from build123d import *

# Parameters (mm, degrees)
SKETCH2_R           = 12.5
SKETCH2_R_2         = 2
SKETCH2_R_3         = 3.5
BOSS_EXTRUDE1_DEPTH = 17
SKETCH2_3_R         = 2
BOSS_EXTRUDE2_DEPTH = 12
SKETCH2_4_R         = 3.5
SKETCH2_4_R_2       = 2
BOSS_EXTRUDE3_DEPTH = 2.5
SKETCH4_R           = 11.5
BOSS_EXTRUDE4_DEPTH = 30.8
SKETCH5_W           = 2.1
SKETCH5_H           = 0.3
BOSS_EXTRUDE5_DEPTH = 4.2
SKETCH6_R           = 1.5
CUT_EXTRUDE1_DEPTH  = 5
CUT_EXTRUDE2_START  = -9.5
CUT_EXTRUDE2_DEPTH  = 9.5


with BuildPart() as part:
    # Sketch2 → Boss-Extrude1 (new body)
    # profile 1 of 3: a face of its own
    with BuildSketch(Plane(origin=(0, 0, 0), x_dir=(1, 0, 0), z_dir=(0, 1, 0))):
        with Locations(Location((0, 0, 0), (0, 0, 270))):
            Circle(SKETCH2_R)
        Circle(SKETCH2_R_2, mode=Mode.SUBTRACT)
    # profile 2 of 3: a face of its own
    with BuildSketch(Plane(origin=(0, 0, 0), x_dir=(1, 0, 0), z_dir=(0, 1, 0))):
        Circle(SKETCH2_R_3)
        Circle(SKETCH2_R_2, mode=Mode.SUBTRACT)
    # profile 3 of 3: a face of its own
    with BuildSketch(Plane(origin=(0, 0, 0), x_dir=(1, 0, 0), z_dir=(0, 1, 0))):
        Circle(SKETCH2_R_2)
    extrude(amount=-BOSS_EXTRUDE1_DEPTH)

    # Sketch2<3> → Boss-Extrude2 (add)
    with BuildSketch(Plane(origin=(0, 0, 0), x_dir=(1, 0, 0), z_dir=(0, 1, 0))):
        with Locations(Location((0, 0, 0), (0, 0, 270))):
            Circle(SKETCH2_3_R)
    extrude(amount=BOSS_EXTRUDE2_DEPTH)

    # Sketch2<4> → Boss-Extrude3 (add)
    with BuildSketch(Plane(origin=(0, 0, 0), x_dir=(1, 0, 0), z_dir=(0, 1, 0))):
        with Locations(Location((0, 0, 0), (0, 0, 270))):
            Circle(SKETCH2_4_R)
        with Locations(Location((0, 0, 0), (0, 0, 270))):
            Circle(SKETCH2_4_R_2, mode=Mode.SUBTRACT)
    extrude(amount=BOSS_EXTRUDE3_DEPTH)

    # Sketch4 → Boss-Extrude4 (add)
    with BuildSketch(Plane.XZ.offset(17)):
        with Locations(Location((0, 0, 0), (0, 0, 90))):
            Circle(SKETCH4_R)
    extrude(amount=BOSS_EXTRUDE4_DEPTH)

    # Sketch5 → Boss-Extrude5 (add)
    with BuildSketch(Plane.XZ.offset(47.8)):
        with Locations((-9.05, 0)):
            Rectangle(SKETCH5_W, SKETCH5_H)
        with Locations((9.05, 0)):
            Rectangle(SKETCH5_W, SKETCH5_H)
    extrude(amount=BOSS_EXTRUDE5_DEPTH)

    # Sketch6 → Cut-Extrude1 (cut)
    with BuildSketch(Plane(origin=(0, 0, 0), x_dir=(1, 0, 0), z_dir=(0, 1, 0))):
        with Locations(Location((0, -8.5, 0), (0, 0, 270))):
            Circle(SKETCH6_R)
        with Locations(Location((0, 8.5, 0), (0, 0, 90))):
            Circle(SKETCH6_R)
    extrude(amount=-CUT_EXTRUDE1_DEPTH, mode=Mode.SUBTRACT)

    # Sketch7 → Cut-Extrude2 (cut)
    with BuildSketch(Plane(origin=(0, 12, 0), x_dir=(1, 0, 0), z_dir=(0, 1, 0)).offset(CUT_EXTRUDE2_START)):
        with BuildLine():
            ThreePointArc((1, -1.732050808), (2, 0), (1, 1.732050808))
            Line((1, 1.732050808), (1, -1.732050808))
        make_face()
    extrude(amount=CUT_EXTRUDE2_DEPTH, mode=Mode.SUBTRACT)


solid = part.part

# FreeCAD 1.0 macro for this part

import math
import FreeCAD as App
import Part
import Sketcher
from FreeCAD import Vector
Q = App.Units.Quantity

doc = App.newDocument("Part")
body = doc.addObject("PartDesign::Body", "Body")

sketch1 = body.newObject("Sketcher::SketchObject", "Sketch")
sketch1.AttachmentSupport = (doc.getObject("XZ_Plane"), [""])
sketch1.MapMode = "FlatFace"
sketch1.addGeometry(Part.Circle(Vector(0, 0, 0), Vector(0, 0, 1), 12), False)
sketch1.addConstraint([
    Sketcher.Constraint("Coincident", 0, 3, -1, 1),
    Sketcher.Constraint("Diameter", 0, Q("25 mm")),
])
pad1 = body.newObject("PartDesign::Pad", "Pad")
pad1.Profile = sketch1
pad1.Length = 17

sketch2 = body.newObject("Sketcher::SketchObject", "Sketch001")
sketch2.AttachmentSupport = (doc.getObject("XZ_Plane"), [""])
sketch2.MapMode = "FlatFace"
sketch2.addGeometry(Part.Circle(Vector(0, 0, 0), Vector(0, 0, 1), 2), False)
sketch2.addConstraint([
    Sketcher.Constraint("Coincident", 0, 3, -1, 1),
    Sketcher.Constraint("Diameter", 0, Q("4 mm")),
])
pad2 = body.newObject("PartDesign::Pad", "Pad001")
pad2.Profile = sketch2
pad2.Length = 12
pad2.Reversed = True

sketch3 = body.newObject("Sketcher::SketchObject", "Sketch002")
sketch3.AttachmentSupport = (doc.getObject("XZ_Plane"), [""])
sketch3.MapMode = "FlatFace"
sketch3.addGeometry([
    Part.Circle(Vector(0, 0, 0), Vector(0, 0, 1), 3.5),
    Part.Circle(Vector(0, 0, 0), Vector(0, 0, 1), 2),
], False)
sketch3.addConstraint([
    Sketcher.Constraint("Coincident", 0, 3, -1, 1),
    Sketcher.Constraint("Coincident", 1, 3, -1, 1),
    Sketcher.Constraint("Diameter", 0, Q("7 mm")),
    Sketcher.Constraint("Diameter", 1, Q("4 mm")),
])
pad3 = body.newObject("PartDesign::Pad", "Pad002")
pad3.Profile = sketch3
pad3.Length = 2.5
pad3.Reversed = True

sketch4 = body.newObject("Sketcher::SketchObject", "Sketch003")
sketch4.AttachmentSupport = (doc.getObject("XZ_Plane"), [""])
sketch4.MapMode = "FlatFace"
sketch4.AttachmentOffset = App.Placement(Vector(0, 0, 17), App.Rotation())
sketch4.addGeometry(Part.Circle(Vector(0, 0, 0), Vector(0, 0, 1), 12), False)
sketch4.addConstraint([
    Sketcher.Constraint("Coincident", 0, 3, -1, 1),
    Sketcher.Constraint("Diameter", 0, Q("23 mm")),
])
pad4 = body.newObject("PartDesign::Pad", "Pad003")
pad4.Profile = sketch4
pad4.Length = 30.8

sketch5 = body.newObject("Sketcher::SketchObject", "Sketch004")
sketch5.AttachmentSupport = (doc.getObject("XZ_Plane"), [""])
sketch5.MapMode = "FlatFace"
sketch5.AttachmentOffset = App.Placement(Vector(0, 0, 47.8), App.Rotation())
sketch5.addGeometry([
    Part.LineSegment(Vector(-10.1, 0.15, 0), Vector(-10.1, -0.15, 0)),
    Part.LineSegment(Vector(-10.1, -0.15, 0), Vector(-8, -0.15, 0)),
    Part.LineSegment(Vector(-8, -0.15, 0), Vector(-8, 0.15, 0)),
    Part.LineSegment(Vector(-8, 0.15, 0), Vector(-10.1, 0.15, 0)),
    Part.LineSegment(Vector(8, 0.15, 0), Vector(8, -0.15, 0)),
    Part.LineSegment(Vector(8, -0.15, 0), Vector(10.1, -0.15, 0)),
    Part.LineSegment(Vector(10.1, -0.15, 0), Vector(10.1, 0.15, 0)),
    Part.LineSegment(Vector(10.1, 0.15, 0), Vector(8, 0.15, 0)),
], False)
sketch5.addConstraint([
    Sketcher.Constraint("Coincident", 0, 2, 1, 1),
    Sketcher.Constraint("Coincident", 1, 2, 2, 1),
    Sketcher.Constraint("Coincident", 2, 2, 3, 1),
    Sketcher.Constraint("Coincident", 3, 2, 0, 1),
    Sketcher.Constraint("Coincident", 4, 2, 5, 1),
    Sketcher.Constraint("Coincident", 5, 2, 6, 1),
    Sketcher.Constraint("Coincident", 6, 2, 7, 1),
    Sketcher.Constraint("Coincident", 7, 2, 4, 1),
    Sketcher.Constraint("Vertical", 0),
    Sketcher.Constraint("Horizontal", 1),
    Sketcher.Constraint("Vertical", 2),
    Sketcher.Constraint("Horizontal", 3),
    Sketcher.Constraint("Vertical", 4),
    Sketcher.Constraint("Horizontal", 5),
    Sketcher.Constraint("Vertical", 6),
    Sketcher.Constraint("Horizontal", 7),
    Sketcher.Constraint("Symmetric", 2, 2, 4, 2, -1, 1),
    Sketcher.Constraint("Symmetric", 0, 2, 6, 2, -1, 1),
    Sketcher.Constraint("Horizontal", 1, 2, 4, 2),
    Sketcher.Constraint("DistanceX", 1, 1, 1, 2, Q("2.1 mm")),
    Sketcher.Constraint("DistanceY", 0, 2, 0, 1, Q("0.3 mm")),
    Sketcher.Constraint("DistanceX", 1, 2, -1, 1, Q("8 mm")),
])
pad5 = body.newObject("PartDesign::Pad", "Pad004")
pad5.Profile = sketch5
pad5.Length = 4.2

sketch6 = body.newObject("Sketcher::SketchObject", "Sketch005")
sketch6.AttachmentSupport = (doc.getObject("XZ_Plane"), [""])
sketch6.MapMode = "FlatFace"
sketch6.addGeometry([
    Part.Circle(Vector(0, 8.5, 0), Vector(0, 0, 1), 1.5),
    Part.Circle(Vector(0, -8.5, 0), Vector(0, 0, 1), 1.5),
], False)
sketch6.addConstraint([
    Sketcher.Constraint("Equal", 0, 1),
    Sketcher.Constraint("Symmetric", 0, 3, 1, 3, -1, 1),
    Sketcher.Constraint("PointOnObject", 0, 3, -2),
    Sketcher.Constraint("Diameter", 0, Q("3 mm")),
    Sketcher.Constraint("DistanceY", 1, 3, 0, 3, Q("17 mm")),
])
pocket1 = body.newObject("PartDesign::Pocket", "Pocket")
pocket1.Profile = sketch6
pocket1.Length = 5
pocket1.Reversed = True

sketch7 = body.newObject("Sketcher::SketchObject", "Sketch006")
sketch7.AttachmentSupport = (doc.getObject("XZ_Plane"), [""])
sketch7.MapMode = "FlatFace"
sketch7.AttachmentOffset = App.Placement(Vector(0, 0, -2.5), App.Rotation())
sketch7.addGeometry([
    Part.ArcOfCircle(Part.Circle(Vector(0, 0, 0), Vector(0, 0, 1), 2), math.radians(-60), math.radians(60)),
    Part.LineSegment(Vector(1, -1.7, 0), Vector(1, 1.7, 0)),
], False)
sketch7.addConstraint([
    Sketcher.Constraint("Coincident", 0, 1, 1, 1),
    Sketcher.Constraint("Coincident", 1, 2, 0, 2),
    Sketcher.Constraint("Vertical", 1),
    Sketcher.Constraint("Coincident", 0, 3, -1, 1),
    Sketcher.Constraint("Radius", 0, Q("2 mm")),
    Sketcher.Constraint("DistanceX", -1, 1, 0, 1, Q("1 mm")),
])
pocket2 = body.newObject("PartDesign::Pocket", "Pocket001")
pocket2.Profile = sketch7
pocket2.Length = 9.5

doc.recompute()
